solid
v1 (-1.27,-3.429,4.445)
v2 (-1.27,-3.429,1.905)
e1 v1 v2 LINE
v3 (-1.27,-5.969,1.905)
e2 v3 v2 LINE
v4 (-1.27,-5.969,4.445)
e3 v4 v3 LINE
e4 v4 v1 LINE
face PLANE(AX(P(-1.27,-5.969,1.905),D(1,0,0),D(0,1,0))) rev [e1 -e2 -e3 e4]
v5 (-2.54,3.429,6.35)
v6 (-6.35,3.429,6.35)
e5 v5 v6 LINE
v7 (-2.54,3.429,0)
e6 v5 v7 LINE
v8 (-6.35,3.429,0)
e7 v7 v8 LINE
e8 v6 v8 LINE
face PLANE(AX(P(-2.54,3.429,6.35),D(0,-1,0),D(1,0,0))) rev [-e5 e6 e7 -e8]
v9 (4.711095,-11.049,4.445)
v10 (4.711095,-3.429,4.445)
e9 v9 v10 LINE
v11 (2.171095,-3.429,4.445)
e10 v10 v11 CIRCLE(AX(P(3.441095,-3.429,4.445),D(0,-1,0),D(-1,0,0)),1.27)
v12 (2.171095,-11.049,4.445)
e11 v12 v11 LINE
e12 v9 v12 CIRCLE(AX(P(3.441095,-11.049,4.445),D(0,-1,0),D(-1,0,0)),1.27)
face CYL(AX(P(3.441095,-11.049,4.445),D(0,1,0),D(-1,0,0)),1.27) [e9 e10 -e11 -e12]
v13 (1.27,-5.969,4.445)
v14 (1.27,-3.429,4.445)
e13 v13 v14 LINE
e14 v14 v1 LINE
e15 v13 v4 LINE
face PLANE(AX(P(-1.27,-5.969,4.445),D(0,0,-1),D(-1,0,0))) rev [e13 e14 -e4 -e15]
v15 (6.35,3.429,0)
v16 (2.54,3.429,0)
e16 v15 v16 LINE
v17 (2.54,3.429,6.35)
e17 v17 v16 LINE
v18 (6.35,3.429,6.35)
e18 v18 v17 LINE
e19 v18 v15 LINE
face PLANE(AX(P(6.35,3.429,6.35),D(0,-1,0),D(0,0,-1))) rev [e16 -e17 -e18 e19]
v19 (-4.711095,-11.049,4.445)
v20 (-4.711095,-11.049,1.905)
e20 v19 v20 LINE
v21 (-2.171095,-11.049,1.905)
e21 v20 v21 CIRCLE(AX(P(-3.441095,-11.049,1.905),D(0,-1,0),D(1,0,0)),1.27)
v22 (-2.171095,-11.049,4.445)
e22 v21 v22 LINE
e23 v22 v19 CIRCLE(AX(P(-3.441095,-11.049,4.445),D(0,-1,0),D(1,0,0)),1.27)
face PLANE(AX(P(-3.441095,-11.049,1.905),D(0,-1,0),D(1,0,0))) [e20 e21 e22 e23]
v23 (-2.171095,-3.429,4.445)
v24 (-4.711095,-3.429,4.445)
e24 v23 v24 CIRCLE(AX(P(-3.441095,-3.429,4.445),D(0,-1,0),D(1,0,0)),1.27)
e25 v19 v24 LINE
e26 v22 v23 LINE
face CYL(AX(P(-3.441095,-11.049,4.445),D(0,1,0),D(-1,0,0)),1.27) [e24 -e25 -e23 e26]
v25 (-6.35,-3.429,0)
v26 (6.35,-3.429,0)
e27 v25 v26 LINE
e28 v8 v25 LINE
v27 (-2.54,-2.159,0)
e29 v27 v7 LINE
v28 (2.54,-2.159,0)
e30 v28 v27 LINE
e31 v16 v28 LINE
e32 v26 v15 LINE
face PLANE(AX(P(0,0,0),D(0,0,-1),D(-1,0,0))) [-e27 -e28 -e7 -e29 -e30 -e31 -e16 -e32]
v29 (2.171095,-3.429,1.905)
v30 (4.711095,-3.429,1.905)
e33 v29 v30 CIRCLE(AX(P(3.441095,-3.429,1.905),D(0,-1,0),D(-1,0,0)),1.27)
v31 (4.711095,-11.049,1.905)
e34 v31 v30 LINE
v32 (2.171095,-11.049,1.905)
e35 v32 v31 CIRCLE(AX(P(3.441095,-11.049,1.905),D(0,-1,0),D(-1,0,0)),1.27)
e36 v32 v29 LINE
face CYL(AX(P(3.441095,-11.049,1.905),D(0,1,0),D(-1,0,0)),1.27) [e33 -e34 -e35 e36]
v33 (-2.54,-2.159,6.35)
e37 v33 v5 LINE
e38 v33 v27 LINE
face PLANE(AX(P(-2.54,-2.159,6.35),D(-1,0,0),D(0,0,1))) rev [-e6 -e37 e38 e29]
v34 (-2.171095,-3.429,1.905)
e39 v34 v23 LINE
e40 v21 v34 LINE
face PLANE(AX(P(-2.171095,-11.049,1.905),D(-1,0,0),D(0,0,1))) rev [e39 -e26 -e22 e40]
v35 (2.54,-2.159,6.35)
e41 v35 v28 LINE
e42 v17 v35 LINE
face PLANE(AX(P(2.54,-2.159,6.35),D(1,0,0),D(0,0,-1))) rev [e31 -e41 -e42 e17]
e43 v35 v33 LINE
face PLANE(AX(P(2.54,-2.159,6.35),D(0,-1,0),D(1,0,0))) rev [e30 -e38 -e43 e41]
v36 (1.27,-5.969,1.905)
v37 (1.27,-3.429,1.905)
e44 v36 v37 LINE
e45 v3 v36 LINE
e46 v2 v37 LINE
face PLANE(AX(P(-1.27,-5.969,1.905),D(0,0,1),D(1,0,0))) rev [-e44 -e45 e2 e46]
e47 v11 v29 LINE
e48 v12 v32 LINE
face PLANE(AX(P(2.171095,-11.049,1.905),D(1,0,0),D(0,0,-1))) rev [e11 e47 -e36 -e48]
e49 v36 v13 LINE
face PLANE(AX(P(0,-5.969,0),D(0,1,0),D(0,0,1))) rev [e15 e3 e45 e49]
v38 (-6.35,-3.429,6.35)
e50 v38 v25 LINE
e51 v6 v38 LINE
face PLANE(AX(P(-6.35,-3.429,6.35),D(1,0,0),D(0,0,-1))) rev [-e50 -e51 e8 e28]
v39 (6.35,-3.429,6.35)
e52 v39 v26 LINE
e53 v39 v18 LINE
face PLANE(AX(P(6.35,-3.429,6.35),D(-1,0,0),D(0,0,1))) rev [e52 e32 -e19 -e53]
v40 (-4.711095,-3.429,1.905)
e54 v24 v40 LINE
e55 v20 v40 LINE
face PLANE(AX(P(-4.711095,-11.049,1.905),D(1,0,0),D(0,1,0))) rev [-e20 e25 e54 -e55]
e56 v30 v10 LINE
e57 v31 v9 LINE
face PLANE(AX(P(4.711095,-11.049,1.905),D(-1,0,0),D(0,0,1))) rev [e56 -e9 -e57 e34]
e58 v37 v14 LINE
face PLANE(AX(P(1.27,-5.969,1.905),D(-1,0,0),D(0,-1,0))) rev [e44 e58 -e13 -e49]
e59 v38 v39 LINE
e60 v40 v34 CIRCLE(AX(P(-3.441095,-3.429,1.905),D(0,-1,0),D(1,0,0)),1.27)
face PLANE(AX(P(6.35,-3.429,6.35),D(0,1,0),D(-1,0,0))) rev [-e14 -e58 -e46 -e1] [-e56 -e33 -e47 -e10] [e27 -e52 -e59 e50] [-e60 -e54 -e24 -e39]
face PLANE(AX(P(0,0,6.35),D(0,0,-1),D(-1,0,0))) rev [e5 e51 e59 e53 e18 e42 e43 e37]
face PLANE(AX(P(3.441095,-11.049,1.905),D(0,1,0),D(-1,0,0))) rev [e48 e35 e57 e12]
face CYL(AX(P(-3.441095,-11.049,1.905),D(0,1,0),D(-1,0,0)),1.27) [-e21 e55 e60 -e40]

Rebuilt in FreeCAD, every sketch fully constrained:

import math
import FreeCAD as App
import Part
import Sketcher
from FreeCAD import Vector
Q = App.Units.Quantity


def add_polygon(sketch, points):
    """Adds a closed chain of lines whose ends are joined by coincident constraints."""
    first, n = sketch.GeometryCount, len(points)
    for a, b in zip(points, points[1:] + points[:1]):
        sketch.addGeometry(Part.LineSegment(App.Vector(*a, 0), App.Vector(*b, 0)), False)
    for i in range(n):
        sketch.addConstraint(Sketcher.Constraint("Coincident", first + i, 2, first + (i + 1) % n, 1))

doc = App.newDocument("Part")
body = doc.addObject("PartDesign::Body", "Body")

# Sketch on XY plane
sketch1 = body.newObject("Sketcher::SketchObject", "Sketch")
sketch1.AttachmentSupport = (doc.getObject("XY_Plane"), [""])
sketch1.MapMode = "FlatFace"
add_polygon(sketch1, [(-6.35, -3.429), (6.35, -3.429), (6.35, 3.429), (2.54, 3.429), (2.54, -2.159), (-2.54, -2.159), (-2.54, 3.429), (-6.35, 3.429)])  # lines 0-7
sketch1.addConstraint([
    Sketcher.Constraint("Horizontal", 0),
    Sketcher.Constraint("Vertical", 1),
    Sketcher.Constraint("Horizontal", 2),
    Sketcher.Constraint("Vertical", 3),
    Sketcher.Constraint("Horizontal", 4),
    Sketcher.Constraint("Vertical", 5),
    Sketcher.Constraint("Horizontal", 6),
    Sketcher.Constraint("Vertical", 7),
    Sketcher.Constraint("Symmetric", 0, 2, 6, 2, -1, 1),
    Sketcher.Constraint("Symmetric", 2, 2, 5, 2, -2),
    Sketcher.Constraint("DistanceX", 0, 1, 0, 2, Q("0.5 in")),
    Sketcher.Constraint("DistanceX", 4, 2, 4, 1, Q("0.2 in")),
    Sketcher.Constraint("DistanceY", 1, 1, 1, 2, Q("0.27 in")),
    Sketcher.Constraint("DistanceY", 3, 2, 3, 1, Q("0.22 in")),
])
pad1 = body.newObject("PartDesign::Pad", "Pad")
pad1.Profile = sketch1
pad1.Length = Q("0.25 in")

# Sketch on XZ plane
sketch2 = body.newObject("Sketcher::SketchObject", "Sketch001")
sketch2.AttachmentSupport = (doc.getObject("XZ_Plane"), [""])
sketch2.MapMode = "FlatFace"
sketch2.AttachmentOffset = App.Placement(Vector(0, 0, 0.135 * 25.4), App.Rotation())
add_polygon(sketch2, [(-1.27, 4.445), (-1.27, 1.905), (1.27, 1.905), (1.27, 4.445)])  # lines 0-3
sketch2.addConstraint([
    Sketcher.Constraint("Vertical", 0),
    Sketcher.Constraint("Horizontal", 1),
    Sketcher.Constraint("Vertical", 2),
    Sketcher.Constraint("Horizontal", 3),
    Sketcher.Constraint("Equal", 3, 0),
    Sketcher.Constraint("DistanceX", 1, 1, 1, 2, Q("0.1 in")),
    Sketcher.Constraint("DistanceX", 0, 2, -1, 1, Q("0.05 in")),
    Sketcher.Constraint("DistanceY", -1, 1, 0, 2, Q("0.075 in")),
])
pad2 = body.newObject("PartDesign::Pad", "Pad001")
pad2.Profile = sketch2
pad2.Length = Q("0.1 in")

# Sketch on XZ plane
sketch3 = body.newObject("Sketcher::SketchObject", "Sketch002")
sketch3.AttachmentSupport = (doc.getObject("XZ_Plane"), [""])
sketch3.MapMode = "FlatFace"
sketch3.AttachmentOffset = App.Placement(Vector(0, 0, 0.135 * 25.4), App.Rotation())
sketch3.addGeometry([
    Part.LineSegment(Vector(-4.711095, 4.445, 0), Vector(-4.711095, 1.905, 0)),  # 0
    Part.ArcOfCircle(Part.Circle(Vector(-3.441095, 1.905, 0), Vector(0, 0, 1), 1.27), math.radians(180), math.radians(360)),  # 1
    Part.LineSegment(Vector(-2.171095, 1.905, 0), Vector(-2.171095, 4.445, 0)),  # 2
    Part.ArcOfCircle(Part.Circle(Vector(-3.441095, 4.445, 0), Vector(0, 0, 1), 1.27), math.radians(0), math.radians(180)),  # 3
    Part.LineSegment(Vector(4.711095, 1.905, 0), Vector(4.711095, 4.445, 0)),  # 4
    Part.ArcOfCircle(Part.Circle(Vector(3.441095, 4.445, 0), Vector(0, 0, 1), 1.27), math.radians(0), math.radians(180)),  # 5
    Part.LineSegment(Vector(2.171095, 4.445, 0), Vector(2.171095, 1.905, 0)),  # 6
    Part.ArcOfCircle(Part.Circle(Vector(3.441095, 1.905, 0), Vector(0, 0, 1), 1.27), math.radians(180), math.radians(360)),  # 7
], False)
sketch3.addConstraint([
    Sketcher.Constraint("Tangent", 0, 2, 1, 1),
    Sketcher.Constraint("Tangent", 1, 2, 2, 1),
    Sketcher.Constraint("Tangent", 2, 2, 3, 1),
    Sketcher.Constraint("Tangent", 3, 2, 0, 1),
    Sketcher.Constraint("Tangent", 4, 2, 5, 1),
    Sketcher.Constraint("Tangent", 5, 2, 6, 1),
    Sketcher.Constraint("Tangent", 6, 2, 7, 1),
    Sketcher.Constraint("Tangent", 7, 2, 4, 1),
    Sketcher.Constraint("Vertical", 0),
    Sketcher.Constraint("Vertical", 2),
    Sketcher.Constraint("Vertical", 4),
    Sketcher.Constraint("Vertical", 6),
    Sketcher.Constraint("Equal", 3, 5),
    Sketcher.Constraint("Symmetric", 3, 3, 5, 3, -2),
    Sketcher.Constraint("Horizontal", 1, 3, 7, 3),
    Sketcher.Constraint("Radius", 1, Q("0.05 in")),
    Sketcher.Constraint("DistanceY", 0, 2, 0, 1, Q("0.1 in")),
    Sketcher.Constraint("DistanceY", -1, 1, 1, 3, Q("0.075 in")),
    Sketcher.Constraint("DistanceX", 3, 3, 5, 3, Q("6.882191 mm")),
])
pad3 = body.newObject("PartDesign::Pad", "Pad002")
pad3.Profile = sketch3
pad3.Length = Q("0.3 in")

doc.recompute()
